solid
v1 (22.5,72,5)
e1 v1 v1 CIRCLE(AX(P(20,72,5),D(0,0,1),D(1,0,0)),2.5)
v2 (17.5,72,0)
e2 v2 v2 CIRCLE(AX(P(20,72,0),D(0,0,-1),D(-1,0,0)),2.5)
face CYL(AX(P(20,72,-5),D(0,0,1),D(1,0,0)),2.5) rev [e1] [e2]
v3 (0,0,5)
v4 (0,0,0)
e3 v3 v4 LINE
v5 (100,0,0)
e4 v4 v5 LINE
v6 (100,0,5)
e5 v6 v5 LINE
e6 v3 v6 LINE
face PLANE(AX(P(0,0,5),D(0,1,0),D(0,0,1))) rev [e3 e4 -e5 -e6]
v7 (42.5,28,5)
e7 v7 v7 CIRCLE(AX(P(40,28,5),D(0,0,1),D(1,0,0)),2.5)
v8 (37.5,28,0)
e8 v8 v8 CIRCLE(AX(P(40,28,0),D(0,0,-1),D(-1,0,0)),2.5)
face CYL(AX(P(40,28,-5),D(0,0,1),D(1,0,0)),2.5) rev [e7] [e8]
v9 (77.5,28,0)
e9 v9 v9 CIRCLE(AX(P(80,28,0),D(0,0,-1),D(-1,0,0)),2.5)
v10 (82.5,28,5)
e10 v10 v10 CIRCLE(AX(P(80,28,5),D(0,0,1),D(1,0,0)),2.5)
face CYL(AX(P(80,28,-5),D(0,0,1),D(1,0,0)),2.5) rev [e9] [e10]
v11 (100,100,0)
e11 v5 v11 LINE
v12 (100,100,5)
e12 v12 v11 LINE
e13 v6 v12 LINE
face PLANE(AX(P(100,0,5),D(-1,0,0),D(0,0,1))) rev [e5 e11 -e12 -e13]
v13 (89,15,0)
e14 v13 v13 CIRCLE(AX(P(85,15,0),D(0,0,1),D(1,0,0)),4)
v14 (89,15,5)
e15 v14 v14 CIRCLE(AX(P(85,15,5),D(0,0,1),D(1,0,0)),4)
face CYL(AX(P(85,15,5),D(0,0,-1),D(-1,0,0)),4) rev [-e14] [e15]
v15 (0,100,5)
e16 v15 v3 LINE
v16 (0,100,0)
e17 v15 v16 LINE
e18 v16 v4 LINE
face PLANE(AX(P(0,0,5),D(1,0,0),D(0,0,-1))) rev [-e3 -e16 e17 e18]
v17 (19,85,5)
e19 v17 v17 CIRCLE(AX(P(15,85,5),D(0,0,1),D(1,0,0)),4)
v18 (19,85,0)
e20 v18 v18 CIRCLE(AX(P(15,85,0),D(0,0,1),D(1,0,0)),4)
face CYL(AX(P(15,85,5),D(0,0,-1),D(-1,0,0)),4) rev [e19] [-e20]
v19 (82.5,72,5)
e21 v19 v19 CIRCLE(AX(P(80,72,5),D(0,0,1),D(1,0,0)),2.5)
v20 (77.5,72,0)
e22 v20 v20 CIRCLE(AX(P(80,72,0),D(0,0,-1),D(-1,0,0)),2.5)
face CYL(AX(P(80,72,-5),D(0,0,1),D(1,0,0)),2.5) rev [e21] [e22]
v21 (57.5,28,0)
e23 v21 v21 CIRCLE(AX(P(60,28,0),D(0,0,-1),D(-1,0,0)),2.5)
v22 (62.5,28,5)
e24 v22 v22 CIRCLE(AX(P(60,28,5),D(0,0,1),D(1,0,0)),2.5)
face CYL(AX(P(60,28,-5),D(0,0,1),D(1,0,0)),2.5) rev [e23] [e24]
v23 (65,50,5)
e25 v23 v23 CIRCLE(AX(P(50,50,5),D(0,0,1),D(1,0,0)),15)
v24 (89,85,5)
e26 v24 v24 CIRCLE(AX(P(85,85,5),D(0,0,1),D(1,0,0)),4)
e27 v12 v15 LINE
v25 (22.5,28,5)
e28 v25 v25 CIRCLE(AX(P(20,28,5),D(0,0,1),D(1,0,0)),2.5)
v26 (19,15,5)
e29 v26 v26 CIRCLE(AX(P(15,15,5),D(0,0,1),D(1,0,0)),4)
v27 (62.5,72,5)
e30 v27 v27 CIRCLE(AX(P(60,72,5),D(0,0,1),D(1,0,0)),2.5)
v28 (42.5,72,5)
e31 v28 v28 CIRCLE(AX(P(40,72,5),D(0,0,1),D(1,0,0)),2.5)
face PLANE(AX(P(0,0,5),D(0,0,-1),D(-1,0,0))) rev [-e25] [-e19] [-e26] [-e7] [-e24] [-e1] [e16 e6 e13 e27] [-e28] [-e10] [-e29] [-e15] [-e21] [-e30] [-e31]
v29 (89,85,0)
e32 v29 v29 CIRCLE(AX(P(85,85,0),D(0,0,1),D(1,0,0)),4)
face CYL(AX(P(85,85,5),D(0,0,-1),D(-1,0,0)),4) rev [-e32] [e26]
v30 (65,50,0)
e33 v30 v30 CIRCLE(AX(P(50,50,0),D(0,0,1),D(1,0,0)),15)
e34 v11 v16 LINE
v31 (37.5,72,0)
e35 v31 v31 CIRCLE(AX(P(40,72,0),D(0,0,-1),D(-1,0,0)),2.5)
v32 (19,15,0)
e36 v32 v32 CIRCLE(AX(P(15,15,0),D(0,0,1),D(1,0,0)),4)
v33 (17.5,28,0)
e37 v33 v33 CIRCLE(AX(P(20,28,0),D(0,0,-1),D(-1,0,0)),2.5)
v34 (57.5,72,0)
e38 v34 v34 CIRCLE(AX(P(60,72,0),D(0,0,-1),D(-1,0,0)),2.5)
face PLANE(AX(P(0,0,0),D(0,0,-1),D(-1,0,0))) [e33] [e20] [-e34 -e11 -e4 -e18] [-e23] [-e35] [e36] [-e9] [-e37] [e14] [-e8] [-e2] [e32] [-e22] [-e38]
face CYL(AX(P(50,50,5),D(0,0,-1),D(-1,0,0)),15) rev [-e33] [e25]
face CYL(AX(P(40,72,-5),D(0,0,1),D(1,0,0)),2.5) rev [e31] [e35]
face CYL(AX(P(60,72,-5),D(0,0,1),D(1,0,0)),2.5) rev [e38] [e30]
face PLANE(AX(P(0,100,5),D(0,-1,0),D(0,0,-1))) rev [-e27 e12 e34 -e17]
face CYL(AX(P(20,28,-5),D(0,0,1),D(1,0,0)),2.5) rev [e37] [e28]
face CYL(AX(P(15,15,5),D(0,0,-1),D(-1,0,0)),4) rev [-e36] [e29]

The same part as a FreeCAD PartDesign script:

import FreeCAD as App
import Part
import Sketcher
Q = App.Units.Quantity


def add_polygon(sketch, points):
    """Adds a closed chain of lines whose ends are joined by coincident constraints."""
    first, n = sketch.GeometryCount, len(points)
    for a, b in zip(points, points[1:] + points[:1]):
        sketch.addGeometry(Part.LineSegment(App.Vector(*a, 0), App.Vector(*b, 0)), False)
    for i in range(n):
        sketch.addConstraint(Sketcher.Constraint("Coincident", first + i, 2, first + (i + 1) % n, 1))

doc = App.newDocument("Part")
body = doc.addObject("PartDesign::Body", "Body")

# Sketch on XY plane
sketch1 = body.newObject("Sketcher::SketchObject", "Sketch")
sketch1.AttachmentSupport = (doc.getObject("XY_Plane"), [""])
sketch1.MapMode = "FlatFace"
add_polygon(sketch1, [(0, 100), (0, 0), (100, 0), (100, 100)])  # lines 0-3
sketch1.addGeometry(Part.Circle(App.Vector(15, 15, 0), App.Vector(0, 0, 1), 4), False)  # 4
sketch1.addGeometry(Part.Circle(App.Vector(85, 15, 0), App.Vector(0, 0, 1), 4), False)  # 5
sketch1.addGeometry(Part.Circle(App.Vector(15, 85, 0), App.Vector(0, 0, 1), 4), False)  # 6
sketch1.addGeometry(Part.Circle(App.Vector(50, 50, 0), App.Vector(0, 0, 1), 15), False)  # 7
sketch1.addGeometry(Part.Circle(App.Vector(85, 85, 0), App.Vector(0, 0, 1), 4), False)  # 8
sketch1.addConstraint(Sketcher.Constraint("Vertical", 0))
sketch1.addConstraint(Sketcher.Constraint("Horizontal", 1))
sketch1.addConstraint(Sketcher.Constraint("Vertical", 2))
sketch1.addConstraint(Sketcher.Constraint("Horizontal", 3))
sketch1.addConstraint(Sketcher.Constraint("Coincident", 0, 2, -1, 1))
sketch1.addConstraint(Sketcher.Constraint("Equal", 4, 5))
sketch1.addConstraint(Sketcher.Constraint("Equal", 5, 6))
sketch1.addConstraint(Sketcher.Constraint("Equal", 6, 8))
sketch1.addConstraint(Sketcher.Constraint("Horizontal", 4, 3, 5, 3))
sketch1.addConstraint(Sketcher.Constraint("Horizontal", 6, 3, 8, 3))
sketch1.addConstraint(Sketcher.Constraint("Vertical", 4, 3, 6, 3))
sketch1.addConstraint(Sketcher.Constraint("Vertical", 5, 3, 8, 3))
sketch1.addConstraint(Sketcher.Constraint("Equal", 3, 0))
sketch1.addConstraint(Sketcher.Constraint("Diameter", 4, Q("8 mm")))
sketch1.addConstraint(Sketcher.Constraint("Diameter", 7, Q("30 mm")))
sketch1.addConstraint(Sketcher.Constraint("DistanceX", 1, 1, 1, 2, Q("100 mm")))
sketch1.addConstraint(Sketcher.Constraint("DistanceX", -1, 1, 4, 3, Q("15 mm")))
sketch1.addConstraint(Sketcher.Constraint("DistanceY", -1, 1, 4, 3, Q("15 mm")))
sketch1.addConstraint(Sketcher.Constraint("DistanceX", -1, 1, 5, 3, Q("85 mm")))
sketch1.addConstraint(Sketcher.Constraint("DistanceY", -1, 1, 6, 3, Q("85 mm")))
sketch1.addConstraint(Sketcher.Constraint("DistanceX", -1, 1, 7, 3, Q("50 mm")))
sketch1.addConstraint(Sketcher.Constraint("DistanceY", -1, 1, 7, 3, Q("50 mm")))
pad1 = body.newObject("PartDesign::Pad", "Pad")
pad1.Profile = sketch1
pad1.Length = 5

# Sketch on XY plane
sketch2 = body.newObject("Sketcher::SketchObject", "Sketch001")
sketch2.AttachmentSupport = (doc.getObject("XY_Plane"), [""])
sketch2.MapMode = "FlatFace"
sketch2.AttachmentOffset = App.Placement(App.Vector(0, 0, 5), App.Rotation())
sketch2.addGeometry(Part.Circle(App.Vector(20, 72, 0), App.Vector(0, 0, 1), 2.5), False)
sketch2.addGeometry(Part.Circle(App.Vector(40, 72, 0), App.Vector(0, 0, 1), 2.5), False)
sketch2.addGeometry(Part.Circle(App.Vector(60, 72, 0), App.Vector(0, 0, 1), 2.5), False)
sketch2.addGeometry(Part.Circle(App.Vector(80, 72, 0), App.Vector(0, 0, 1), 2.5), False)
sketch2.addGeometry(Part.Circle(App.Vector(80, 28, 0), App.Vector(0, 0, 1), 2.5), False)
sketch2.addGeometry(Part.Circle(App.Vector(60, 28, 0), App.Vector(0, 0, 1), 2.5), False)
sketch2.addGeometry(Part.Circle(App.Vector(40, 28, 0), App.Vector(0, 0, 1), 2.5), False)
sketch2.addGeometry(Part.Circle(App.Vector(20, 28, 0), App.Vector(0, 0, 1), 2.5), False)
sketch2.addConstraint(Sketcher.Constraint("Equal", 0, 1))
sketch2.addConstraint(Sketcher.Constraint("Equal", 1, 2))
sketch2.addConstraint(Sketcher.Constraint("Equal", 2, 3))
sketch2.addConstraint(Sketcher.Constraint("Equal", 3, 4))
sketch2.addConstraint(Sketcher.Constraint("Equal", 4, 5))
sketch2.addConstraint(Sketcher.Constraint("Equal", 5, 6))
sketch2.addConstraint(Sketcher.Constraint("Equal", 6, 7))
sketch2.addConstraint(Sketcher.Constraint("Horizontal", 0, 3, 1, 3))
sketch2.addConstraint(Sketcher.Constraint("Horizontal", 1, 3, 2, 3))
sketch2.addConstraint(Sketcher.Constraint("Horizontal", 2, 3, 3, 3))
sketch2.addConstraint(Sketcher.Constraint("Horizontal", 4, 3, 5, 3))
sketch2.addConstraint(Sketcher.Constraint("Horizontal", 5, 3, 6, 3))
sketch2.addConstraint(Sketcher.Constraint("Horizontal", 6, 3, 7, 3))
sketch2.addConstraint(Sketcher.Constraint("Vertical", 3, 3, 4, 3))
sketch2.addConstraint(Sketcher.Constraint("Vertical", 2, 3, 5, 3))
sketch2.addConstraint(Sketcher.Constraint("Vertical", 1, 3, 6, 3))
sketch2.addConstraint(Sketcher.Constraint("Vertical", 0, 3, 7, 3))
sketch2.addConstraint(Sketcher.Constraint("Diameter", 0, Q("5 mm")))
sketch2.addConstraint(Sketcher.Constraint("DistanceX", -1, 1, 0, 3, Q("20 mm")))
sketch2.addConstraint(Sketcher.Constraint("DistanceY", -1, 1, 0, 3, Q("72 mm")))
sketch2.addConstraint(Sketcher.Constraint("DistanceX", -1, 1, 1, 3, Q("40 mm")))
sketch2.addConstraint(Sketcher.Constraint("DistanceX", -1, 1, 2, 3, Q("60 mm")))
sketch2.addConstraint(Sketcher.Constraint("DistanceX", -1, 1, 3, 3, Q("80 mm")))
sketch2.addConstraint(Sketcher.Constraint("DistanceY", -1, 1, 4, 3, Q("28 mm")))
pocket1 = body.newObject("PartDesign::Pocket", "Pocket")
pocket1.Profile = sketch2
pocket1.Length = 10

doc.recompute()
